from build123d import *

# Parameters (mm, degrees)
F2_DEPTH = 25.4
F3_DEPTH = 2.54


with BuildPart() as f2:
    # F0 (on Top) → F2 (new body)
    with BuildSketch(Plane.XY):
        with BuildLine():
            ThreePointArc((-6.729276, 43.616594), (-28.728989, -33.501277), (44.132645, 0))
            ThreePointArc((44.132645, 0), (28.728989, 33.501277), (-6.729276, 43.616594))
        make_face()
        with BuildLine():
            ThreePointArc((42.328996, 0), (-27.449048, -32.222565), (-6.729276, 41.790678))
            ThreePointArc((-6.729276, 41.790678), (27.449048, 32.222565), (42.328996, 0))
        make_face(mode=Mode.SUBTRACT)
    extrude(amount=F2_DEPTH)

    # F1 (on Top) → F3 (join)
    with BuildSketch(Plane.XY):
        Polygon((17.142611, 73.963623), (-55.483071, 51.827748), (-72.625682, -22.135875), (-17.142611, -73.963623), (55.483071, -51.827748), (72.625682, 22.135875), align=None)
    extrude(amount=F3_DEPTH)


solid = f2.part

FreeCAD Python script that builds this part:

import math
import FreeCAD as App
import Part
import Sketcher

V = App.Vector
Q = App.Units.Quantity


def add_polygon(sketch, points):
    """Adds a closed chain of lines whose ends are joined by coincident constraints."""
    first, n = sketch.GeometryCount, len(points)
    for a, b in zip(points, points[1:] + points[:1]):
        sketch.addGeometry(Part.LineSegment(App.Vector(*a, 0), App.Vector(*b, 0)), False)
    for i in range(n):
        sketch.addConstraint(Sketcher.Constraint("Coincident", first + i, 2, first + (i + 1) % n, 1))

doc = App.newDocument("Part")
body = doc.addObject("PartDesign::Body", "Body")

sketch1 = body.newObject("Sketcher::SketchObject", "Sketch")
sketch1.AttachmentSupport = (doc.getObject("XY_Plane"), [""])
sketch1.MapMode = "FlatFace"
sketch1.addGeometry([
    Part.ArcOfCircle(Part.Circle(V(0, 0, 0), V(0, 0, 1), 44), math.radians(99), math.radians(360)),
    Part.ArcOfCircle(Part.Circle(V(0, 0, 0), V(0, 0, 1), 44), math.radians(0), math.radians(99)),
    Part.ArcOfCircle(Part.Circle(V(0, 0, 0), V(0, 0, 1), 42), math.radians(0), math.radians(99)),
    Part.ArcOfCircle(Part.Circle(V(0, 0, 0), V(0, 0, 1), 42), math.radians(99), math.radians(360)),
], False)
sketch1.addConstraint([
    Sketcher.Constraint("Tangent", 0, 1, 1, 2),
    Sketcher.Constraint("Coincident", 1, 1, 0, 2),
    Sketcher.Constraint("Tangent", 2, 1, 3, 2),
    Sketcher.Constraint("Coincident", 3, 1, 2, 2),
    Sketcher.Constraint("Coincident", 0, 3, -1, 1),
    Sketcher.Constraint("Coincident", 2, 3, -1, 1),
    Sketcher.Constraint("PointOnObject", 1, 1, -1),
    Sketcher.Constraint("PointOnObject", 2, 1, -1),
    Sketcher.Constraint("Vertical", 0, 1, 3, 1),
    Sketcher.Constraint("Radius", 0, Q("44.132645 mm")),
    Sketcher.Constraint("Radius", 2, Q("42.328996 mm")),
    Sketcher.Constraint("DistanceY", -1, 1, 3, 1, Q("41.790678 mm")),
])
pad1 = body.newObject("PartDesign::Pad", "Pad")
pad1.Profile = sketch1
pad1.Length = Q("1 in")

sketch2 = body.newObject("Sketcher::SketchObject", "Sketch001")
sketch2.AttachmentSupport = (doc.getObject("XY_Plane"), [""])
sketch2.MapMode = "FlatFace"
add_polygon(sketch2, [(17, 74), (-55, 52), (-73, -22), (-17, -74), (55, -52), (73, 22)])
sketch2.addConstraint([
    Sketcher.Constraint("Symmetric", 0, 2, 3, 2, -1, 1),
    Sketcher.Constraint("Symmetric", 1, 2, 4, 2, -1, 1),
    Sketcher.Constraint("Symmetric", 2, 2, 5, 2, -1, 1),
    Sketcher.Constraint("Equal", 0, 1),
    Sketcher.Constraint("Equal", 1, 2),
    Sketcher.Constraint("DistanceX", 0, 2, -1, 1, Q("55.483071 mm")),
    Sketcher.Constraint("DistanceX", 1, 2, -1, 1, Q("72.625682 mm")),
    Sketcher.Constraint("DistanceX", 2, 2, -1, 1, Q("17.142611 mm")),
    Sketcher.Constraint("DistanceY", 2, 2, 0, 2, Q("125.791371 mm")),
])
pad2 = body.newObject("PartDesign::Pad", "Pad001")
pad2.Profile = sketch2
pad2.Length = Q("0.1 in")

doc.recompute()
